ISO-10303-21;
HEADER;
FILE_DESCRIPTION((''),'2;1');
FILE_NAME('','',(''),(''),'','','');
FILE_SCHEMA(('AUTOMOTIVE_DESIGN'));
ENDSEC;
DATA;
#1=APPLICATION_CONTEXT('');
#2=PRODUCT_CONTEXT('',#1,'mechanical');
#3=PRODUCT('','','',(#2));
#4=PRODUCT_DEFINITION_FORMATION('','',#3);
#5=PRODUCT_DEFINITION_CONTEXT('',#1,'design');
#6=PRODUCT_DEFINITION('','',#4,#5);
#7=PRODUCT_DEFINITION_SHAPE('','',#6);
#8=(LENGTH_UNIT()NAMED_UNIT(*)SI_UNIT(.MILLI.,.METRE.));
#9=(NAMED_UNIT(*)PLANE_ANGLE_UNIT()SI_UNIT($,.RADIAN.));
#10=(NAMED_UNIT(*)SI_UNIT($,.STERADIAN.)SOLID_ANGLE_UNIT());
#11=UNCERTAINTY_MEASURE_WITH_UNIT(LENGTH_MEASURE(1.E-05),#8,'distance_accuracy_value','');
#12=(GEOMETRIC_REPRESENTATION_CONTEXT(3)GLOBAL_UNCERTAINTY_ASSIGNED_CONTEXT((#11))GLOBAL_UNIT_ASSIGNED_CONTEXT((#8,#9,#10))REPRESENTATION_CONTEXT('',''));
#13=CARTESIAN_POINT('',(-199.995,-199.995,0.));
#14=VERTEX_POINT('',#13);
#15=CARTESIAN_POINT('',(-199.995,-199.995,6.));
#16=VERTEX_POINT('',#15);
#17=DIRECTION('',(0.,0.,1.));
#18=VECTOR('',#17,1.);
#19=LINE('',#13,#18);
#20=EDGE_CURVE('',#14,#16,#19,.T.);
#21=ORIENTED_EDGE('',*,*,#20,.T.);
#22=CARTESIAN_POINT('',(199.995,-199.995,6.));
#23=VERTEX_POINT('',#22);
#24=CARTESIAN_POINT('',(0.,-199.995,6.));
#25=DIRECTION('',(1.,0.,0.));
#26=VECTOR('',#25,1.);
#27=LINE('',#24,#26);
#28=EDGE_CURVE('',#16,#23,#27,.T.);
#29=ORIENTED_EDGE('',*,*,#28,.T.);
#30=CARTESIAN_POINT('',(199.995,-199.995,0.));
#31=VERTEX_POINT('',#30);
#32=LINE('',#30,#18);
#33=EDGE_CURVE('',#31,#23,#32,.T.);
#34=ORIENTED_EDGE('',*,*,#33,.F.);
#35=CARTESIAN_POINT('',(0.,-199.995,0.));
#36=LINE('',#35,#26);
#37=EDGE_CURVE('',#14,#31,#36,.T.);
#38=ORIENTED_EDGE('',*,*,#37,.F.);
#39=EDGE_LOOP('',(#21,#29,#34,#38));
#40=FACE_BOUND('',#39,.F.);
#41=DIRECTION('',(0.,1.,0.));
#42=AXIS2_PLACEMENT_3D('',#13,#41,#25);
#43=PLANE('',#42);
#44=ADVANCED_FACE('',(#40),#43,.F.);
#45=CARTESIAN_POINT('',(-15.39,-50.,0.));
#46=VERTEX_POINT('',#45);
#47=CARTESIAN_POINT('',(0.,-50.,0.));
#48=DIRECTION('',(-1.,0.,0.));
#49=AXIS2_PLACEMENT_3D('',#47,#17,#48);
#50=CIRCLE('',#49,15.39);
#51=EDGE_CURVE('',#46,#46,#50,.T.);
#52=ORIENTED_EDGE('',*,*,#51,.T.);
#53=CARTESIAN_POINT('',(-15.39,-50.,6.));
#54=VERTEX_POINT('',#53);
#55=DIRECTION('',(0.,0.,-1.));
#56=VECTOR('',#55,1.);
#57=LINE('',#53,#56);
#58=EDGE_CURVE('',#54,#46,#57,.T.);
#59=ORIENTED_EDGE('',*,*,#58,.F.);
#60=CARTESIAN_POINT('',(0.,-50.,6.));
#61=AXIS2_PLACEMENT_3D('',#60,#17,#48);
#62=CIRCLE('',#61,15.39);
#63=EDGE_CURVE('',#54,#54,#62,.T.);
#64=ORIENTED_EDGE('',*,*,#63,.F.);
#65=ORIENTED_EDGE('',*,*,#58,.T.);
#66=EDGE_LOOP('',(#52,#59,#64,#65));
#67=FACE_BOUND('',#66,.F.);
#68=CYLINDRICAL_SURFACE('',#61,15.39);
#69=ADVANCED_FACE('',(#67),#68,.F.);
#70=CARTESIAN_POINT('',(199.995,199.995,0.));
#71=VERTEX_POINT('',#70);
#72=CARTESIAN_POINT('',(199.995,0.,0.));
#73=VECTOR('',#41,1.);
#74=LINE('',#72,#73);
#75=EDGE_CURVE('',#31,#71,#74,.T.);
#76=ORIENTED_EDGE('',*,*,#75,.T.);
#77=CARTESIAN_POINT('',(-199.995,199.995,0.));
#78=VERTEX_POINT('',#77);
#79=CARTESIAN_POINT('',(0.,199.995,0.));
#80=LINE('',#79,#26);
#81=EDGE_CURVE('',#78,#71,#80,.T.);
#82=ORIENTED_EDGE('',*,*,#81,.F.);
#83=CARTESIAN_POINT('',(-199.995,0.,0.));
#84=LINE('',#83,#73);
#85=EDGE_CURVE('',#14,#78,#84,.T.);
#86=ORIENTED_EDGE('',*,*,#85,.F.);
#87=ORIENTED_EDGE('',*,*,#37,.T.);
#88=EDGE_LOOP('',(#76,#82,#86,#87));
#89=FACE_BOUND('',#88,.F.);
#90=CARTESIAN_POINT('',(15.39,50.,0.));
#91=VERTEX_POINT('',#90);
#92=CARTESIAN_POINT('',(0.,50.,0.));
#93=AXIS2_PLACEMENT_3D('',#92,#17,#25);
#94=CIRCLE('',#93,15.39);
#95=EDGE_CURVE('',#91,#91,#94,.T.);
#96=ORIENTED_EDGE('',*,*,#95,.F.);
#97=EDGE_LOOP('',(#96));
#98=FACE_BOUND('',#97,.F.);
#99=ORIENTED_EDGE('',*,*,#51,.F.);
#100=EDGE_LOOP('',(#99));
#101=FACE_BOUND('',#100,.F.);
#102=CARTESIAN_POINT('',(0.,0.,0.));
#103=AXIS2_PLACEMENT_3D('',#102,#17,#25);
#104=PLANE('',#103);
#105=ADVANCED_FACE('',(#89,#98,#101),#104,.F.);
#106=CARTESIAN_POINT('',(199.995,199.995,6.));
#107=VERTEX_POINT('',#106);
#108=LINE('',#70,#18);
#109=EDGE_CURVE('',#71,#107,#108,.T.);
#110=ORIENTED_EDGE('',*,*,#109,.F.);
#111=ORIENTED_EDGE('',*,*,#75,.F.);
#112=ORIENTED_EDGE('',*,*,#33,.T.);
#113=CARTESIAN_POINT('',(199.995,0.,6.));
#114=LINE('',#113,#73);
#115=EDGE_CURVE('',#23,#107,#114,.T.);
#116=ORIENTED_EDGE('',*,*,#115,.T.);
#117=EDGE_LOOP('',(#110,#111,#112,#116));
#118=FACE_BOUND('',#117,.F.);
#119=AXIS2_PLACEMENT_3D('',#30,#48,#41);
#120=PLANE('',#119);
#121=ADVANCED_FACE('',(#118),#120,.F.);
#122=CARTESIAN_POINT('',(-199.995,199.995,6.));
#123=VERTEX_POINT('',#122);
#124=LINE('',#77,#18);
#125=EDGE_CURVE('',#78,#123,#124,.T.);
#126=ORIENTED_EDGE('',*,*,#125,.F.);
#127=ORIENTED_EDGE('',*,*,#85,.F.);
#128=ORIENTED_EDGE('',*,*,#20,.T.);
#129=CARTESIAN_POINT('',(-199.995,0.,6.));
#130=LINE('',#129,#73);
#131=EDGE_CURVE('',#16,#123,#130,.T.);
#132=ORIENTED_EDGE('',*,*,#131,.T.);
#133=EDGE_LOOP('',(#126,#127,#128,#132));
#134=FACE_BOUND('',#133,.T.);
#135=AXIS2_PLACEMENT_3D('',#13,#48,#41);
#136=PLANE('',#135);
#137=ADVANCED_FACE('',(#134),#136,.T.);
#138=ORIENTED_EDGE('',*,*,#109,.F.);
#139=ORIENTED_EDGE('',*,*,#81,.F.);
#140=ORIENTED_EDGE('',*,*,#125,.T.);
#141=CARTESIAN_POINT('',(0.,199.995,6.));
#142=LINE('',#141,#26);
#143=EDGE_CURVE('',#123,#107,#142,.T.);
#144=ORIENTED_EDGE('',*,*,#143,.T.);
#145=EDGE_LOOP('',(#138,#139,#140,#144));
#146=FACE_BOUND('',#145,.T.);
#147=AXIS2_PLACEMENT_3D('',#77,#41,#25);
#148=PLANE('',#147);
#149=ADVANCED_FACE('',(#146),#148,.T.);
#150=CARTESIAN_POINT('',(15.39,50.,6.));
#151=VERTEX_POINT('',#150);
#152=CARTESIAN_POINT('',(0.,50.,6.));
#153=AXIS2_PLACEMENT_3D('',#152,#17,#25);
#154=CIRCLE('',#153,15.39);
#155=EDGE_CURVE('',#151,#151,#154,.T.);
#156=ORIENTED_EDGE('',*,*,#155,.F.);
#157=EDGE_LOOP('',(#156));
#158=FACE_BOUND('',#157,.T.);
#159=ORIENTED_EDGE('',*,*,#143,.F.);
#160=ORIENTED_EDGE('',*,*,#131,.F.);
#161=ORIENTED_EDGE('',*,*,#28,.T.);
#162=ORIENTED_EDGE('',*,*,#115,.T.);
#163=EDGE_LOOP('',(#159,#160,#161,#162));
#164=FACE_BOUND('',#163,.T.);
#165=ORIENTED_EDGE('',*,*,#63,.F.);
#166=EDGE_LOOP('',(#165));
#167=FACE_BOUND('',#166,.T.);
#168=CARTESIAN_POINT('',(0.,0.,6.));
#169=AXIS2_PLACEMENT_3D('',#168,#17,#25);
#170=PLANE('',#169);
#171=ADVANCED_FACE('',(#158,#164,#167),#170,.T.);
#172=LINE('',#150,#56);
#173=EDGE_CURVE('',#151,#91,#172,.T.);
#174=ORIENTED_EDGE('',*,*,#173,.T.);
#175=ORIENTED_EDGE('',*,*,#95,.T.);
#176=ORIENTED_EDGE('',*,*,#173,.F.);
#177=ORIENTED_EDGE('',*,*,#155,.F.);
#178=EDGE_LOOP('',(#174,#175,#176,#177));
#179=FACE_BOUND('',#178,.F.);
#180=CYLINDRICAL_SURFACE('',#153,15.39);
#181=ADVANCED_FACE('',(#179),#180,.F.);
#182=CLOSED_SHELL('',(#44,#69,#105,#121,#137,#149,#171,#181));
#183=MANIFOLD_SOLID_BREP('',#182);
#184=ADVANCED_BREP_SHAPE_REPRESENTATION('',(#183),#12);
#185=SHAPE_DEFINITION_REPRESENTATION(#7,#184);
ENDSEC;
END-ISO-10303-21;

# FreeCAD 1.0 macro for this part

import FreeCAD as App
import Part
import Sketcher
from FreeCAD import Vector
Q = App.Units.Quantity

doc = App.newDocument("Part")
body = doc.addObject("PartDesign::Body", "Body")

sketch1 = body.newObject("Sketcher::SketchObject", "Sketch")
sketch1.AttachmentSupport = (doc.getObject("XY_Plane"), [""])
sketch1.MapMode = "FlatFace"
sketch1.addGeometry(Part.LineSegment(Vector(-199.995, 199.995, 0), Vector(-199.995, -199.995, 0)), False)
sketch1.addGeometry(Part.LineSegment(Vector(-199.995, -199.995, 0), Vector(199.995, -199.995, 0)), False)
sketch1.addGeometry(Part.LineSegment(Vector(199.995, -199.995, 0), Vector(199.995, 199.995, 0)), False)
sketch1.addGeometry(Part.LineSegment(Vector(199.995, 199.995, 0), Vector(-199.995, 199.995, 0)), False)
sketch1.addConstraint(Sketcher.Constraint("Coincident", 0, 2, 1, 1))
sketch1.addConstraint(Sketcher.Constraint("Coincident", 1, 2, 2, 1))
sketch1.addConstraint(Sketcher.Constraint("Coincident", 2, 2, 3, 1))
sketch1.addConstraint(Sketcher.Constraint("Coincident", 3, 2, 0, 1))
sketch1.addConstraint(Sketcher.Constraint("Vertical", 0))
sketch1.addConstraint(Sketcher.Constraint("Horizontal", 1))
sketch1.addConstraint(Sketcher.Constraint("Vertical", 2))
sketch1.addConstraint(Sketcher.Constraint("Horizontal", 3))
sketch1.addConstraint(Sketcher.Constraint("Symmetric", 0, 2, 2, 2, -1, 1))
sketch1.addConstraint(Sketcher.Constraint("Equal", 3, 0))
sketch1.addConstraint(Sketcher.Constraint("DistanceX", 1, 1, 1, 2, Q("399.99 mm")))
pad1 = body.newObject("PartDesign::Pad", "Pad")
pad1.Profile = sketch1
pad1.Length = 6

sketch2 = body.newObject("Sketcher::SketchObject", "Sketch001")
sketch2.AttachmentSupport = (doc.getObject("XY_Plane"), [""])
sketch2.MapMode = "FlatFace"
sketch2.AttachmentOffset = App.Placement(Vector(0, 0, 6), App.Rotation())
sketch2.addGeometry(Part.Circle(Vector(0, 50, 0), Vector(0, 0, 1), 15.39), False)
sketch2.addConstraint(Sketcher.Constraint("PointOnObject", 0, 3, -2))
sketch2.addConstraint(Sketcher.Constraint("Diameter", 0, Q("30.78 mm")))
sketch2.addConstraint(Sketcher.Constraint("DistanceY", -1, 1, 0, 3, Q("50 mm")))
pocket1 = body.newObject("PartDesign::Pocket", "Pocket")
pocket1.Profile = sketch2
pocket1.Type = "ThroughAll"
doc.recompute()

polarpattern = body.newObject("PartDesign::PolarPattern", "PolarPattern")
polarpattern.Originals = [pocket1]
polarpattern.Axis = (doc.getObject("Z_Axis"), [""])
polarpattern.Angle = 360
polarpattern.Occurrences = 2
body.Tip = polarpattern

doc.recompute()
